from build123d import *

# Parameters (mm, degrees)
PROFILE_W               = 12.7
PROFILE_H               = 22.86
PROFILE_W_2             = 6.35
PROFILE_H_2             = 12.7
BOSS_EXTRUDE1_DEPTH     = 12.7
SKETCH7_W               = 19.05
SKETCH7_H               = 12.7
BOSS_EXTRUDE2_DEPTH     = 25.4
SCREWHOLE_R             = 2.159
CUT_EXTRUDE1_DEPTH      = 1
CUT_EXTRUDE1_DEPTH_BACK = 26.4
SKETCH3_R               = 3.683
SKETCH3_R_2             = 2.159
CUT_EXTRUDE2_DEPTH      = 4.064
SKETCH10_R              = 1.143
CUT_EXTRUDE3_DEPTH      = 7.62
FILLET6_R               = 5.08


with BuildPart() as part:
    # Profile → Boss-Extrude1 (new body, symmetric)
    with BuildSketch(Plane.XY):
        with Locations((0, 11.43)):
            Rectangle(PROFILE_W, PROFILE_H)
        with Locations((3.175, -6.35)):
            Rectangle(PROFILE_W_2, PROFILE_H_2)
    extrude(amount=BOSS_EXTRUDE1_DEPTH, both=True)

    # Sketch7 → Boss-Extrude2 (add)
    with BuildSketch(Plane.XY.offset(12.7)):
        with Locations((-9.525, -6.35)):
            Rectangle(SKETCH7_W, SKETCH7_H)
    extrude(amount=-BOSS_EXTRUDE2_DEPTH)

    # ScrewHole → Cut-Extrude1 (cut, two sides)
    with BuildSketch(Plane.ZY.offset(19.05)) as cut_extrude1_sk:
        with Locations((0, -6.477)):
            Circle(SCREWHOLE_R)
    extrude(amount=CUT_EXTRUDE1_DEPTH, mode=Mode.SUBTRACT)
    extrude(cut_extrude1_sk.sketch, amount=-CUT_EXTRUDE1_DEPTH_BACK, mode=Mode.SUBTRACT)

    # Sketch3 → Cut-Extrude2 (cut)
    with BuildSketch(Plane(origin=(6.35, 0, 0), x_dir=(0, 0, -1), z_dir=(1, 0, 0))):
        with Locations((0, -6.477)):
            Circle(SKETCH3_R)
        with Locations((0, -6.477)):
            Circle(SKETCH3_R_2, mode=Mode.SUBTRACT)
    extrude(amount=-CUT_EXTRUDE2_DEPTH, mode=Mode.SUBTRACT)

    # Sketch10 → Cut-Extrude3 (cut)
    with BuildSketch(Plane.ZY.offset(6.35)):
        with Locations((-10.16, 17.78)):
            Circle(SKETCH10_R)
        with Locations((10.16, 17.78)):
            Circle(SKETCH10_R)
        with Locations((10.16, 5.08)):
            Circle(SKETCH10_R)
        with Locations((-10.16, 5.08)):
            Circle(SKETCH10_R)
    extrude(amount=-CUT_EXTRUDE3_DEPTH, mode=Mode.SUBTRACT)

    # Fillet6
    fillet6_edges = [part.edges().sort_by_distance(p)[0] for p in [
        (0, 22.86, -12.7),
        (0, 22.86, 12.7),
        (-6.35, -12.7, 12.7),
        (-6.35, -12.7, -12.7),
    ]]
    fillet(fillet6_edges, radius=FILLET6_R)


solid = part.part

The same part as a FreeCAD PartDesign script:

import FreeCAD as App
import Part
import Sketcher
from FreeCAD import Vector
Q = App.Units.Quantity


def edges_at(feature, points):
    """Names of the edges that pass closest to the given points."""
    edges = feature.Shape.Edges
    near = lambda p: min(range(len(edges)), key=lambda i: edges[i].distToShape(Part.Vertex(*p))[0])
    return sorted({f"Edge{near(p) + 1}" for p in points})


def add_polygon(sketch, points):
    """Adds a closed chain of lines whose ends are joined by coincident constraints."""
    first, n = sketch.GeometryCount, len(points)
    for a, b in zip(points, points[1:] + points[:1]):
        sketch.addGeometry(Part.LineSegment(App.Vector(*a, 0), App.Vector(*b, 0)), False)
    for i in range(n):
        sketch.addConstraint(Sketcher.Constraint("Coincident", first + i, 2, first + (i + 1) % n, 1))

doc = App.newDocument("Part")
body = doc.addObject("PartDesign::Body", "Body")

# Sketch on XY plane
sketch1 = body.newObject("Sketcher::SketchObject", "Sketch")
sketch1.AttachmentSupport = (doc.getObject("XY_Plane"), [""])
sketch1.MapMode = "FlatFace"
add_polygon(sketch1, [(-6, 23), (-6, 0), (0, 0), (0, -13), (6, -13), (6, 23)])  # lines 0-5
sketch1.addConstraint([
    Sketcher.Constraint("Vertical", 0),
    Sketcher.Constraint("Horizontal", 1),
    Sketcher.Constraint("Vertical", 2),
    Sketcher.Constraint("Horizontal", 3),
    Sketcher.Constraint("Vertical", 4),
    Sketcher.Constraint("Horizontal", 5),
    Sketcher.Constraint("Coincident", 1, 2, -1, 1),
    Sketcher.Constraint("Equal", 1, 3),
    Sketcher.Constraint("Equal", 5, 2),
    Sketcher.Constraint("DistanceX", 5, 2, 5, 1, Q("0.5 in")),
    Sketcher.Constraint("DistanceY", 0, 2, 0, 1, Q("0.9 in")),
])
pad1 = body.newObject("PartDesign::Pad", "Pad")
pad1.Profile = sketch1
pad1.Length = Q("1 in")
pad1.Midplane = True

# Sketch on XY plane
sketch2 = body.newObject("Sketcher::SketchObject", "Sketch001")
sketch2.AttachmentSupport = (doc.getObject("XY_Plane"), [""])
sketch2.MapMode = "FlatFace"
sketch2.AttachmentOffset = App.Placement(Vector(0, 0, 0.5 * 25.4), App.Rotation())
add_polygon(sketch2, [(-19, 0), (-19, -13), (0, -13), (0, 0)])  # lines 0-3
sketch2.addConstraint([
    Sketcher.Constraint("Vertical", 0),
    Sketcher.Constraint("Horizontal", 1),
    Sketcher.Constraint("Vertical", 2),
    Sketcher.Constraint("Horizontal", 3),
    Sketcher.Constraint("Coincident", 2, 2, -1, 1),
    Sketcher.Constraint("DistanceY", 0, 2, 0, 1, Q("0.5 in")),
    Sketcher.Constraint("DistanceX", 1, 1, 1, 2, Q("0.75 in")),
])
pad2 = body.newObject("PartDesign::Pad", "Pad001")
pad2.Profile = sketch2
pad2.Length = Q("1 in")
pad2.Reversed = True

# Sketch on YZ plane
sketch3 = body.newObject("Sketcher::SketchObject", "Sketch002")
sketch3.AttachmentSupport = (doc.getObject("YZ_Plane"), [""])
sketch3.MapMode = "FlatFace"
sketch3.AttachmentOffset = App.Placement(Vector(0, 0, -0.75 * 25.4), App.Rotation())
sketch3.addGeometry(Part.Circle(Vector(-6.5, 0, 0), Vector(0, 0, 1), 2.2), False)
sketch3.addConstraint([
    Sketcher.Constraint("PointOnObject", 0, 3, -1),
    Sketcher.Constraint("Diameter", 0, Q("0.17 in")),
    Sketcher.Constraint("DistanceX", 0, 3, -1, 1, Q("0.255 in")),
])
pocket1 = body.newObject("PartDesign::Pocket", "Pocket")
pocket1.Profile = sketch3
pocket1.Type = "ThroughAll"
pocket1.Midplane = True

# Sketch on YZ plane
sketch4 = body.newObject("Sketcher::SketchObject", "Sketch003")
sketch4.AttachmentSupport = (doc.getObject("YZ_Plane"), [""])
sketch4.MapMode = "FlatFace"
sketch4.AttachmentOffset = App.Placement(Vector(0, 0, 0.25 * 25.4), App.Rotation())
sketch4.addGeometry([
    Part.Circle(Vector(-6.5, 0, 0), Vector(0, 0, 1), 3.7),
    Part.Circle(Vector(-6.5, 0, 0), Vector(0, 0, 1), 2.2),
], False)
sketch4.addConstraint([
    Sketcher.Constraint("Coincident", 1, 3, 0, 3),
    Sketcher.Constraint("PointOnObject", 0, 3, -1),
    Sketcher.Constraint("Diameter", 0, Q("0.29 in")),
    Sketcher.Constraint("Diameter", 1, Q("0.17 in")),
    Sketcher.Constraint("DistanceX", 0, 3, -1, 1, Q("0.255 in")),
])
pocket2 = body.newObject("PartDesign::Pocket", "Pocket001")
pocket2.Profile = sketch4
pocket2.Length = Q("0.16 in")

# Sketch on YZ plane
sketch5 = body.newObject("Sketcher::SketchObject", "Sketch004")
sketch5.AttachmentSupport = (doc.getObject("YZ_Plane"), [""])
sketch5.MapMode = "FlatFace"
sketch5.AttachmentOffset = App.Placement(Vector(0, 0, -0.25 * 25.4), App.Rotation())
sketch5.addGeometry([
    Part.Circle(Vector(17.8, -10.2, 0), Vector(0, 0, 1), 1.1),
    Part.Circle(Vector(17.8, 10.2, 0), Vector(0, 0, 1), 1.1),
    Part.Circle(Vector(5.1, 10.2, 0), Vector(0, 0, 1), 1.1),
    Part.Circle(Vector(5.1, -10.2, 0), Vector(0, 0, 1), 1.1),
], False)
sketch5.addConstraint([
    Sketcher.Constraint("Equal", 0, 1),
    Sketcher.Constraint("Equal", 1, 2),
    Sketcher.Constraint("Equal", 2, 3),
    Sketcher.Constraint("Symmetric", 0, 3, 1, 3, -1),
    Sketcher.Constraint("Symmetric", 2, 3, 3, 3, -1),
    Sketcher.Constraint("Horizontal", 1, 3, 2, 3),
    Sketcher.Constraint("Diameter", 0, Q("0.09 in")),
    Sketcher.Constraint("DistanceX", -1, 1, 0, 3, Q("0.7 in")),
    Sketcher.Constraint("DistanceY", 0, 3, -1, 1, Q("0.4 in")),
    Sketcher.Constraint("DistanceX", -1, 1, 2, 3, Q("0.2 in")),
])
pocket3 = body.newObject("PartDesign::Pocket", "Pocket002")
pocket3.Profile = sketch5
pocket3.Length = Q("0.3 in")
pocket3.Reversed = True
doc.recompute()

fillet = body.newObject("PartDesign::Fillet", "Fillet")
fillet.Base = (pocket3, edges_at(pocket3, [
    (0, 22.86, -12.7),
    (0, 22.86, 12.7),
    (-6.35, -12.7, 12.7),
    (-6.35, -12.7, -12.7),
]))
fillet.Radius = Q("0.2 in")

doc.recompute()
